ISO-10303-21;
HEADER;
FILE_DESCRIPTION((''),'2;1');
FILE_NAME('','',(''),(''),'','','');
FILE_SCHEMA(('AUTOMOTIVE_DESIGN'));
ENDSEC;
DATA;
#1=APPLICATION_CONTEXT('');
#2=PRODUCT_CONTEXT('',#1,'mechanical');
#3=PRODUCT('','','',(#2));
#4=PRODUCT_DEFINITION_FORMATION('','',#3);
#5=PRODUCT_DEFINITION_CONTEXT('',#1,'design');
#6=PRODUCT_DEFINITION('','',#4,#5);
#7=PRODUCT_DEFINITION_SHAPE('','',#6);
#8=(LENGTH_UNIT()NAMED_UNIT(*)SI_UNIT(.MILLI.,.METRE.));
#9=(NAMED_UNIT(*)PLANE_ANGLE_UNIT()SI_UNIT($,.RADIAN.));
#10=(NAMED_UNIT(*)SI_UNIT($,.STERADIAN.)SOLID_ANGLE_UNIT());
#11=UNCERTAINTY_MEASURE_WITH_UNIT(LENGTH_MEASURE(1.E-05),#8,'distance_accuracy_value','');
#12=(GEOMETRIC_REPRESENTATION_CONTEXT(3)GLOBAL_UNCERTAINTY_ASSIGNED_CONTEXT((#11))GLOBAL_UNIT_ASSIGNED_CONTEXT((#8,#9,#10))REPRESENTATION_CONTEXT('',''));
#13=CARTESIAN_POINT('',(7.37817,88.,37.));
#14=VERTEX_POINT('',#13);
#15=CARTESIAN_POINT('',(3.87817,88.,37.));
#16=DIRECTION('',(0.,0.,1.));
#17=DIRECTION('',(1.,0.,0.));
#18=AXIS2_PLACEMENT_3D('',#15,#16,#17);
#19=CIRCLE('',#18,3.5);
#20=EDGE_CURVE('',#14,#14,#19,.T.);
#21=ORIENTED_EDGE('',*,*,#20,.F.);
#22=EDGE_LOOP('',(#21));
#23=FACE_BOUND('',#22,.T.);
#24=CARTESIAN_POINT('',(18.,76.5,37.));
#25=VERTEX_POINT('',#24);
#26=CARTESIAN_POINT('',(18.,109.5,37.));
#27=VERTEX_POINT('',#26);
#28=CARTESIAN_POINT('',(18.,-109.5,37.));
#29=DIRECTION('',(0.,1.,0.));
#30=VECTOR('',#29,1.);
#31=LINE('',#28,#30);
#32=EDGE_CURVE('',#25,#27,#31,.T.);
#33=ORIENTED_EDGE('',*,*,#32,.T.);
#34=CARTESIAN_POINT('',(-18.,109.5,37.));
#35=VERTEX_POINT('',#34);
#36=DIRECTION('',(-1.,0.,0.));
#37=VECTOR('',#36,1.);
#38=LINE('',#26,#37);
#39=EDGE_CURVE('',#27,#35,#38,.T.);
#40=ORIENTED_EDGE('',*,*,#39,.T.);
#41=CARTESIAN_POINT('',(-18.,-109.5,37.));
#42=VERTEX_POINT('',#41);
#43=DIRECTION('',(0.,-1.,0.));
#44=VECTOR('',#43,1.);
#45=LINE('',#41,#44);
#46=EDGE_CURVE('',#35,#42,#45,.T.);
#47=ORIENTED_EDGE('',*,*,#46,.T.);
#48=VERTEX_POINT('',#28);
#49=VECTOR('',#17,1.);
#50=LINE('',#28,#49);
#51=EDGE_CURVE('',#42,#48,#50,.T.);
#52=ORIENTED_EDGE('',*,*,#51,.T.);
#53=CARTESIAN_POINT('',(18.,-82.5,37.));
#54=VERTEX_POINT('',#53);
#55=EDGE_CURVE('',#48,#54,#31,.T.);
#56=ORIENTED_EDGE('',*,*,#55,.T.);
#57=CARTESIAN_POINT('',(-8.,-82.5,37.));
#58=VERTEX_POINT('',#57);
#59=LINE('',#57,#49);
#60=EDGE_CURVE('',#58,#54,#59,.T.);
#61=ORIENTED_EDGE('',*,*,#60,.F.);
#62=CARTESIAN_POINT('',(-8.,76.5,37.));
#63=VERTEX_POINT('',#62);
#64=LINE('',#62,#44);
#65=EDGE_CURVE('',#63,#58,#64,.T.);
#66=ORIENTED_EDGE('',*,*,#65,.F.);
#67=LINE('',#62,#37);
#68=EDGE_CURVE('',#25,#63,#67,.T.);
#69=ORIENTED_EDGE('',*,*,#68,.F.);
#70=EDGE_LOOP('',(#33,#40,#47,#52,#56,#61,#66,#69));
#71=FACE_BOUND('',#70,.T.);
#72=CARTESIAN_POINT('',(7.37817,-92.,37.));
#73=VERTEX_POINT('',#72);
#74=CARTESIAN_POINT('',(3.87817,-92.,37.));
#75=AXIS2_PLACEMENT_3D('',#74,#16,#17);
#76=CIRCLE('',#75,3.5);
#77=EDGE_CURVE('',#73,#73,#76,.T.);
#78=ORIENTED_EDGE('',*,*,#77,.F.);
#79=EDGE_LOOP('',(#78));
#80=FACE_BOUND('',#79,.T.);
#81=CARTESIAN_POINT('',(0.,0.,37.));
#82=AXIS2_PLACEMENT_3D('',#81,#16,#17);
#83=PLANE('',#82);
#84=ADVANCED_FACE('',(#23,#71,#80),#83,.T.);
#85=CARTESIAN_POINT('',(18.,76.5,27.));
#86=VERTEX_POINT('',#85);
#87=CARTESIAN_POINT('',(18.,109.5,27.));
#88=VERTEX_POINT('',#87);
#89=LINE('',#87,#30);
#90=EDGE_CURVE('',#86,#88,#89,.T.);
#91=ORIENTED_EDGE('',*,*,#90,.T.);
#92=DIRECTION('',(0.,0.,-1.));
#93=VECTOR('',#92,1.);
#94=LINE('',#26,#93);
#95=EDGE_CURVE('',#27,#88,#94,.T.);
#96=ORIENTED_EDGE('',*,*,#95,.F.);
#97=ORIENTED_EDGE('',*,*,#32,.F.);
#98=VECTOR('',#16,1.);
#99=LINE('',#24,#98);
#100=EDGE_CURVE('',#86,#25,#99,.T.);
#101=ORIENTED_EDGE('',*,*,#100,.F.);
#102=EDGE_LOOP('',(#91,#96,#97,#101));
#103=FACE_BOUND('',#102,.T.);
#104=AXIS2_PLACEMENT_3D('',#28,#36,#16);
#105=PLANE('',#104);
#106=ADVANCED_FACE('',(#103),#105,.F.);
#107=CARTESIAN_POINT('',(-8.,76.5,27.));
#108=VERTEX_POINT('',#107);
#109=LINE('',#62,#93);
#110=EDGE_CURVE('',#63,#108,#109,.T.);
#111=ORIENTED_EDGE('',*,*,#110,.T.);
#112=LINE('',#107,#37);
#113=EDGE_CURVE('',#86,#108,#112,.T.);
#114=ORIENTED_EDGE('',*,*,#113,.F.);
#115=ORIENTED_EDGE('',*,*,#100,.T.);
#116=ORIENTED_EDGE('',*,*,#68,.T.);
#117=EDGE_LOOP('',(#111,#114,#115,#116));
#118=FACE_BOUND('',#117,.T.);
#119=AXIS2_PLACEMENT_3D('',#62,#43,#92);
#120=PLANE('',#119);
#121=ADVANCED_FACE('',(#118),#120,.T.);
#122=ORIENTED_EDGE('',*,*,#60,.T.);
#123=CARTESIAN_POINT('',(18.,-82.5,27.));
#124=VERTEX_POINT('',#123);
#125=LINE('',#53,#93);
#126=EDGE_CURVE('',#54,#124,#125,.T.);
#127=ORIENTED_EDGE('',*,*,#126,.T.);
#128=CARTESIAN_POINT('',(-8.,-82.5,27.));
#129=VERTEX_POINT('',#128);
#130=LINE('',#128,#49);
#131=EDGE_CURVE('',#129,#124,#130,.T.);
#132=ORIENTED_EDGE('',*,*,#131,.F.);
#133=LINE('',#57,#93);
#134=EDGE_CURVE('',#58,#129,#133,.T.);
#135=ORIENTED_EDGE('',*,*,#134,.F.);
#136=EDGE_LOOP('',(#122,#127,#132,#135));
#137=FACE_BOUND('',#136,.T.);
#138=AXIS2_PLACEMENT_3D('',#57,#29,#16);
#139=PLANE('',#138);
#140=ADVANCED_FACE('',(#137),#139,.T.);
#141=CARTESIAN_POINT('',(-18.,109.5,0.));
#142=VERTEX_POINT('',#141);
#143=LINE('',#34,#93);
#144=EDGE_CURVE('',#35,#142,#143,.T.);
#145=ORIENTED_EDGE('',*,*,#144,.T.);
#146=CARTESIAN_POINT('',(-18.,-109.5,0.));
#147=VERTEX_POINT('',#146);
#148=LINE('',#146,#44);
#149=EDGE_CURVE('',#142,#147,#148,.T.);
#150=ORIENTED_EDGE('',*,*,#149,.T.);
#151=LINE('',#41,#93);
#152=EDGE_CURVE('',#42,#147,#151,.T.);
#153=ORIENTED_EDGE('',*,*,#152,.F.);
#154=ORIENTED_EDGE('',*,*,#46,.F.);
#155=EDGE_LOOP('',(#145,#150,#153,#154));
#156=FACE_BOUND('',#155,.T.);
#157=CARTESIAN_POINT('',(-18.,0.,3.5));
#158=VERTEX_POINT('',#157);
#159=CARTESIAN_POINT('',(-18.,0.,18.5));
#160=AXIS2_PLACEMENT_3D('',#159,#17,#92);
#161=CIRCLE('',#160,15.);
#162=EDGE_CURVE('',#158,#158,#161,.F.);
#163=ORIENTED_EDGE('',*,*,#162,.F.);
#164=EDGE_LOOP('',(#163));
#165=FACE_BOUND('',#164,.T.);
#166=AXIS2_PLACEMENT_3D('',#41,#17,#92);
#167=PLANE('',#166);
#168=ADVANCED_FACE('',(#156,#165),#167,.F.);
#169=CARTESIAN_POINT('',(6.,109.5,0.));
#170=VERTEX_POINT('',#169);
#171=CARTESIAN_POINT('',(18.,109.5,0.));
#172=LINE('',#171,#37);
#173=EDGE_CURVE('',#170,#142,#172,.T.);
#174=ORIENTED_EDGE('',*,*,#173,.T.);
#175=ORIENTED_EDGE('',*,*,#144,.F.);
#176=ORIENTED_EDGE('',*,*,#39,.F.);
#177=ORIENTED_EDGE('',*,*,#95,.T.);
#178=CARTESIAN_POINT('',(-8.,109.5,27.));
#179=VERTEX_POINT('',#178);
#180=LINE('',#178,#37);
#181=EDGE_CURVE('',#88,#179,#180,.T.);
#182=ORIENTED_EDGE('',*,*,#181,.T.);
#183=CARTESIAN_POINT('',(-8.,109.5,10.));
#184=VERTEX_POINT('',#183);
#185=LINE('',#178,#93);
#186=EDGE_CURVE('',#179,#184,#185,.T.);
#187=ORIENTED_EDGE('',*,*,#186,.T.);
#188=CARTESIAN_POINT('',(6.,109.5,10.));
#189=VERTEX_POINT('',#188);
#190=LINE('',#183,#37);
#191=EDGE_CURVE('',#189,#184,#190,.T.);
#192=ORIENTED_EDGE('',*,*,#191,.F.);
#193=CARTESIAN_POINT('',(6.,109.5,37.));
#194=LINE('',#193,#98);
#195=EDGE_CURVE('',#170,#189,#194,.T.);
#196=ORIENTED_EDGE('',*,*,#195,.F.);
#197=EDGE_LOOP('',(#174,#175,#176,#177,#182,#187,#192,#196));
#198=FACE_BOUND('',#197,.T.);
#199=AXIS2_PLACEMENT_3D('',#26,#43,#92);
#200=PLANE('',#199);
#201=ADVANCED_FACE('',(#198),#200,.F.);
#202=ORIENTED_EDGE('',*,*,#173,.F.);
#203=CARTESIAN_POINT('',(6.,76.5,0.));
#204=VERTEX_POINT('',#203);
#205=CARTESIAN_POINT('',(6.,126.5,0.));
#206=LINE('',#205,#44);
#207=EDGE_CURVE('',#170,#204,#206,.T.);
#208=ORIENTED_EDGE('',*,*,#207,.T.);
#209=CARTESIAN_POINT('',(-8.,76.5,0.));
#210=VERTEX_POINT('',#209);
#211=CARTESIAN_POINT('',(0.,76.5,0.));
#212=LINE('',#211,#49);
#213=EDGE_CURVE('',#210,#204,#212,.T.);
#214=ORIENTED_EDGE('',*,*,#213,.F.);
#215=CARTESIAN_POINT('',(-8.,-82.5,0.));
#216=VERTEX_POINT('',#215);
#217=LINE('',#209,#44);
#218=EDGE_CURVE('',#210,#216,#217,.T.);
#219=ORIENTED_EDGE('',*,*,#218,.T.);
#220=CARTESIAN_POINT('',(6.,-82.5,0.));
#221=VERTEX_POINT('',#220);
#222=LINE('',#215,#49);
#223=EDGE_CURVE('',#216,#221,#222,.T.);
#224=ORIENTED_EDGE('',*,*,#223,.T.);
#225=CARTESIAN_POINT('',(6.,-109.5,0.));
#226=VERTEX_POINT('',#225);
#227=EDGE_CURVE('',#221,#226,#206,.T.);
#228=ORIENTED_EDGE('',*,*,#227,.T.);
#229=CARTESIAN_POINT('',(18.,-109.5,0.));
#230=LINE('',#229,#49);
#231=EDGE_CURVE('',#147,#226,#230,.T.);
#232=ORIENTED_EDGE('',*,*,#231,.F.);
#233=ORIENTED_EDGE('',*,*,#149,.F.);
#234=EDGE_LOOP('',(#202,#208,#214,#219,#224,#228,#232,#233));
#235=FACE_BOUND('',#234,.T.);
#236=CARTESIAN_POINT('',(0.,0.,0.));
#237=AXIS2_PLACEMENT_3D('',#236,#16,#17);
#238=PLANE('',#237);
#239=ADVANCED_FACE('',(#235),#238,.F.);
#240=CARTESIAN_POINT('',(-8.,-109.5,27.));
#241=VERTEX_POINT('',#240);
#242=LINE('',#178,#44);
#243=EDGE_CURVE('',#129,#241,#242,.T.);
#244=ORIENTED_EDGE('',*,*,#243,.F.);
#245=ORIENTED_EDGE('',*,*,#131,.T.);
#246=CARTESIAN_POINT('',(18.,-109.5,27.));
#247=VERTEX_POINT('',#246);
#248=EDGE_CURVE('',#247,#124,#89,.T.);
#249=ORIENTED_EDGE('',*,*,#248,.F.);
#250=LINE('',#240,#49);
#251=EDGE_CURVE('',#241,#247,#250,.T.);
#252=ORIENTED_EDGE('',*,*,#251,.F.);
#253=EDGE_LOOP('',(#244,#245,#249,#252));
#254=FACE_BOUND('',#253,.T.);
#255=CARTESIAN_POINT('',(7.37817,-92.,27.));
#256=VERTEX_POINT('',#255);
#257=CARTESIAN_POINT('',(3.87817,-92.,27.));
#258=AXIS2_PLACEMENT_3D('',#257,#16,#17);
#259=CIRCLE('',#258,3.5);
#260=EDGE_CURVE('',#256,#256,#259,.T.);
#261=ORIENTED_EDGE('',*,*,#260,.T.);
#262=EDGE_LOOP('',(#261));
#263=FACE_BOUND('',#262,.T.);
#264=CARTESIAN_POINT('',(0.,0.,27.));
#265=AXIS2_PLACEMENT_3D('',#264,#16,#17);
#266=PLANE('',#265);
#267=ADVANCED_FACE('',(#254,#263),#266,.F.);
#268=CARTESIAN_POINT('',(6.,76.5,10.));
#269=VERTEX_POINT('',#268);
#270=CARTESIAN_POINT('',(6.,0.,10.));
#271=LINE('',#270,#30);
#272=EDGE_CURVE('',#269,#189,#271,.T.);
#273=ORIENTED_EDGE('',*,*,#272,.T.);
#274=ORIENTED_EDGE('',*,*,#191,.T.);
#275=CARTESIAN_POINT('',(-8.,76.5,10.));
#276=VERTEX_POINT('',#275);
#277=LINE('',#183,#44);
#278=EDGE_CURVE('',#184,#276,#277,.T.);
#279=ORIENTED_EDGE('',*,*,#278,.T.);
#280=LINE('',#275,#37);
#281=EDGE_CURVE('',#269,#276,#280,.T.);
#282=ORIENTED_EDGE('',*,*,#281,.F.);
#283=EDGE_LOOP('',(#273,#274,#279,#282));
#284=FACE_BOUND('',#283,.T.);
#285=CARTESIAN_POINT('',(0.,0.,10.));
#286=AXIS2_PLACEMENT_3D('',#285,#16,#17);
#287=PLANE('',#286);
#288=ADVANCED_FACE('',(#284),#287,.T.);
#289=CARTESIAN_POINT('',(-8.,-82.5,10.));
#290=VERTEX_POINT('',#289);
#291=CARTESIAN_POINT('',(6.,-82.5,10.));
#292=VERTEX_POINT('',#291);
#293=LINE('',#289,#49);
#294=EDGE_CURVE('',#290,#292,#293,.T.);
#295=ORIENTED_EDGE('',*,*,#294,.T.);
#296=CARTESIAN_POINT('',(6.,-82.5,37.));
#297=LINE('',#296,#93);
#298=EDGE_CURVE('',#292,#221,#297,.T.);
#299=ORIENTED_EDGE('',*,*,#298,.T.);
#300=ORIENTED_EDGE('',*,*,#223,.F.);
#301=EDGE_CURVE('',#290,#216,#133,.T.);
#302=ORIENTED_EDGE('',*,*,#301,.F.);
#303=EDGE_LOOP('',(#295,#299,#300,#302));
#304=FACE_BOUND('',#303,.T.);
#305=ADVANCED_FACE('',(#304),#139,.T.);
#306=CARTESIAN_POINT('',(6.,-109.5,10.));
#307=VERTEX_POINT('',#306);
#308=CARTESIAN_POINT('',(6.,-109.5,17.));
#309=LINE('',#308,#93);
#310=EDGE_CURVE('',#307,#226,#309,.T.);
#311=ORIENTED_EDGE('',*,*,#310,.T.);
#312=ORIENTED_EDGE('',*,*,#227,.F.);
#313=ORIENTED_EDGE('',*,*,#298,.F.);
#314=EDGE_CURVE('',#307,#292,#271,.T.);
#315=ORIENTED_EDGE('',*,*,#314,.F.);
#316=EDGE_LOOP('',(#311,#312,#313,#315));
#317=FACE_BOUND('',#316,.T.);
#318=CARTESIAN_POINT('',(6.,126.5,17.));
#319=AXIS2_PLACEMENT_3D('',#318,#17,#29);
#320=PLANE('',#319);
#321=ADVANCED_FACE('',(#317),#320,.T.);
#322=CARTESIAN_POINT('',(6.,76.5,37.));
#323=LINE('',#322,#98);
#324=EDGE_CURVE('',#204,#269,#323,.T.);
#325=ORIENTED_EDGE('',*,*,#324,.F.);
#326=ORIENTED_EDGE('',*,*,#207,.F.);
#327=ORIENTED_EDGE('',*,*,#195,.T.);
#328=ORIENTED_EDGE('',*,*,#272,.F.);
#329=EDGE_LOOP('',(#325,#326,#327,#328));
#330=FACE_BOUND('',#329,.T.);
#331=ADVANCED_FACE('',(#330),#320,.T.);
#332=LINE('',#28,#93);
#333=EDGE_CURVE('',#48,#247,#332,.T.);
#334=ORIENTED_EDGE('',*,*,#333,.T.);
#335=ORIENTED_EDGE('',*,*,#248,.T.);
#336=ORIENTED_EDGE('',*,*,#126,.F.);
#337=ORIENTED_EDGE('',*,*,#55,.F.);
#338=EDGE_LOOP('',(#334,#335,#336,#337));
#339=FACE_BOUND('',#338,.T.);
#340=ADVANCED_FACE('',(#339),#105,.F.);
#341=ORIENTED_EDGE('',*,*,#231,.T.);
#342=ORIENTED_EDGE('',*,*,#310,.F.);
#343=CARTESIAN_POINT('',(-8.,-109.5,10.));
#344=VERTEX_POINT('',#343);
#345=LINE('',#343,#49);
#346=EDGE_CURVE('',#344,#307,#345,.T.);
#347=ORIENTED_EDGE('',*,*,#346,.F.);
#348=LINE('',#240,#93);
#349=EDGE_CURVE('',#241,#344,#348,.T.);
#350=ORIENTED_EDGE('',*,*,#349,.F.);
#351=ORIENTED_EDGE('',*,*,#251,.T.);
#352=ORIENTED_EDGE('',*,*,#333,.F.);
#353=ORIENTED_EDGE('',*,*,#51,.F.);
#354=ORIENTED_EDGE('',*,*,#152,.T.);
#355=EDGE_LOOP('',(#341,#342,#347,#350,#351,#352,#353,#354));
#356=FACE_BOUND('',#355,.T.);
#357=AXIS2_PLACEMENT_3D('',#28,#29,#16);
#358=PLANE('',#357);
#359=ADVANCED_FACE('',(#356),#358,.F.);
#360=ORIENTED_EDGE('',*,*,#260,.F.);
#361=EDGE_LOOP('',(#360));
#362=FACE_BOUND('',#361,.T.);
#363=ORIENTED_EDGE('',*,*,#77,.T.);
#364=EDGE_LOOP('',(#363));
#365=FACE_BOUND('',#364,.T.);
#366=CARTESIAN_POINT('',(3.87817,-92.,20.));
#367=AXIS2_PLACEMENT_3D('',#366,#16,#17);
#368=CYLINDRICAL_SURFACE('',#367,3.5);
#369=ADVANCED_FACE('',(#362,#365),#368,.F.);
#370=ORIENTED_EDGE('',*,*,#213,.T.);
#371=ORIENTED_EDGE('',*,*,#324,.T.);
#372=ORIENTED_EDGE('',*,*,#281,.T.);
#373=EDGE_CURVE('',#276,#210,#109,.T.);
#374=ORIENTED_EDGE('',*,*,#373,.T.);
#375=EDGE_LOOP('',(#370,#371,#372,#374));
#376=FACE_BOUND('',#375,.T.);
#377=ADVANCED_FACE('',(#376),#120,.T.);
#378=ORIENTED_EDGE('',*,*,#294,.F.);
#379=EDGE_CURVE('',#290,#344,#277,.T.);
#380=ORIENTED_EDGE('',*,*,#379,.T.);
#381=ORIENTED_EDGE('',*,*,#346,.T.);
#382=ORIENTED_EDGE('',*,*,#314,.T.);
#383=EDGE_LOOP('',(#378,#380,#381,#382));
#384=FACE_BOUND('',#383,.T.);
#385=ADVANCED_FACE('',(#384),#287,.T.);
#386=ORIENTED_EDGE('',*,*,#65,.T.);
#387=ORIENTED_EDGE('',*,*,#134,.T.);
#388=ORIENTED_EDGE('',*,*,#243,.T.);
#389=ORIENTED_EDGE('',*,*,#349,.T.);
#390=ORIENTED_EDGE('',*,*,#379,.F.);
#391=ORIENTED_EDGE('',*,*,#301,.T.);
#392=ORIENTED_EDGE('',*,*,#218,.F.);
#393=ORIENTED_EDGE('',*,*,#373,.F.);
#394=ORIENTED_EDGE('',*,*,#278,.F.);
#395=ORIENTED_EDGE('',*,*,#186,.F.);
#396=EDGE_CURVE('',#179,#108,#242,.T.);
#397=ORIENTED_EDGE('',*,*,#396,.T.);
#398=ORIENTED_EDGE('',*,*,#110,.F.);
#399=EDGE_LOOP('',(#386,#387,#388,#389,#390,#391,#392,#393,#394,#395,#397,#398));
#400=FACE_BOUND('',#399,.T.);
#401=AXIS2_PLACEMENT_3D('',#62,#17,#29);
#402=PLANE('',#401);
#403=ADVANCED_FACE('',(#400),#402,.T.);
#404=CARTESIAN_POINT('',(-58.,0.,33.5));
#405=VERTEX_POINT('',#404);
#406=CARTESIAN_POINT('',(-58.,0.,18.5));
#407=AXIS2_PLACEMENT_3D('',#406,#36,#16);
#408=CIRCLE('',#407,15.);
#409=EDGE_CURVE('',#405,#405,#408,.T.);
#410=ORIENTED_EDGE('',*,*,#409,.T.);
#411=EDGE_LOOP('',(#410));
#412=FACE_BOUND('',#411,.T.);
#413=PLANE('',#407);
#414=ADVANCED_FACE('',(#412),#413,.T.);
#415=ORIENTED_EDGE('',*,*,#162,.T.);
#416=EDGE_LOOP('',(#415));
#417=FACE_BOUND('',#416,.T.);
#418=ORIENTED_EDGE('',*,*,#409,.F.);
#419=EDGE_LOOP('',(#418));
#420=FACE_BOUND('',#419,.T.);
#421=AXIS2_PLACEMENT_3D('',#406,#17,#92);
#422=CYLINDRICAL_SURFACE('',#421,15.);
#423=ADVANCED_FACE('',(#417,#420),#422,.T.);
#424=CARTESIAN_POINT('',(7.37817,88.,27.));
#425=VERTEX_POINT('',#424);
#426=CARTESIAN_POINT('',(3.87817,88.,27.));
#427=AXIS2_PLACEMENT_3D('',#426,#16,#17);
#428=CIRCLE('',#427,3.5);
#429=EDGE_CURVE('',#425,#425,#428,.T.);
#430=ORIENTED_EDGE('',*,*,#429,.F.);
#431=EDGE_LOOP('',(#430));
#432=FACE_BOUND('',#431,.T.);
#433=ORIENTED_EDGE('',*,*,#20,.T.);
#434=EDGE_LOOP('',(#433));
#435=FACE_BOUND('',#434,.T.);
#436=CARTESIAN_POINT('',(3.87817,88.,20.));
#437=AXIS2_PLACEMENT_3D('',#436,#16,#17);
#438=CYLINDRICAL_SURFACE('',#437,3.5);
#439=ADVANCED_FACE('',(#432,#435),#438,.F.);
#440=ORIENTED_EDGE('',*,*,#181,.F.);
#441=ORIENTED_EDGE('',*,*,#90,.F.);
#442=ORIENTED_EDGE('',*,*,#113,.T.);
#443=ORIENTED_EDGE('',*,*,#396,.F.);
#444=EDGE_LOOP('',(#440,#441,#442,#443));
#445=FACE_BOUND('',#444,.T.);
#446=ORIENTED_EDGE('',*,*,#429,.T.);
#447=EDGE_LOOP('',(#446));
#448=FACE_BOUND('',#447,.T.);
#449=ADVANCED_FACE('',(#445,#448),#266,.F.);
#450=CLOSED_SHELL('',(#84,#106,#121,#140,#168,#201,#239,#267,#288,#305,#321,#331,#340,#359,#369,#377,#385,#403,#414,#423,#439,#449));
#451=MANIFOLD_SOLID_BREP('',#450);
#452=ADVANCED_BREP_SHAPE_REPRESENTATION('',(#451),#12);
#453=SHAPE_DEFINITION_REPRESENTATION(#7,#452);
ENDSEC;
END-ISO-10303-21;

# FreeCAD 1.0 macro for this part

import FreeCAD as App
import Part
import Sketcher


def add_polygon(sketch, points):
    """Adds a closed chain of lines whose ends are joined by coincident constraints."""
    first, n = sketch.GeometryCount, len(points)
    for a, b in zip(points, points[1:] + points[:1]):
        sketch.addGeometry(Part.LineSegment(App.Vector(*a, 0), App.Vector(*b, 0)), False)
    for i in range(n):
        sketch.addConstraint(Sketcher.Constraint("Coincident", first + i, 2, first + (i + 1) % n, 1))

doc = App.newDocument("Part")
body = doc.addObject("PartDesign::Body", "Body")

# Sketch on XY plane
sketch1 = body.newObject("Sketcher::SketchObject", "Sketch")
sketch1.AttachmentSupport = (doc.getObject("XY_Plane"), [""])
sketch1.MapMode = "FlatFace"
add_polygon(sketch1, [(-18, 109.5), (-18, -109.5), (18, -109.5), (18, 109.5)])  # lines 0-3
sketch1.addConstraint([
    Sketcher.Constraint("Vertical", 0),
    Sketcher.Constraint("Horizontal", 1),
    Sketcher.Constraint("Vertical", 2),
    Sketcher.Constraint("Horizontal", 3),
    Sketcher.Constraint("Symmetric", 0, 2, 2, 2, -1, 1),
    Sketcher.Constraint("DistanceX", 1, 1, 1, 2, 36.0),
    Sketcher.Constraint("DistanceY", 0, 2, 0, 1, 219.0),
])
pad1 = body.newObject("PartDesign::Pad", "Pad")
pad1.Profile = sketch1
pad1.Length = 37

# Sketch on XY plane
sketch2 = body.newObject("Sketcher::SketchObject", "Sketch001")
sketch2.AttachmentSupport = (doc.getObject("XY_Plane"), [""])
sketch2.MapMode = "FlatFace"
add_polygon(sketch2, [(-8, 76.5), (-8, -82.5), (72.767996, -82.5), (72.767996, 76.5)])  # lines 0-3
sketch2.addConstraint([
    Sketcher.Constraint("Vertical", 0),
    Sketcher.Constraint("Horizontal", 1),
    Sketcher.Constraint("Vertical", 2),
    Sketcher.Constraint("Horizontal", 3),
    Sketcher.Constraint("DistanceY", 0, 2, 0, 1, 159.0),
    Sketcher.Constraint("DistanceX", 0, 2, -1, 1, 8.0),
    Sketcher.Constraint("DistanceY", 0, 2, -1, 1, 82.5),
    Sketcher.Constraint("DistanceX", 1, 1, 1, 2, 80.767996),
])
pocket1 = body.newObject("PartDesign::Pocket", "Pocket")
pocket1.Profile = sketch2
pocket1.Type = "ThroughAll"
pocket1.Reversed = True

# Sketch on XY plane
sketch3 = body.newObject("Sketcher::SketchObject", "Sketch002")
sketch3.AttachmentSupport = (doc.getObject("XY_Plane"), [""])
sketch3.MapMode = "FlatFace"
sketch3.AttachmentOffset = App.Placement(App.Vector(0, 0, 10), App.Rotation())
add_polygon(sketch3, [(-8, 109.5), (-8, -109.5), (18, -109.5), (18, 109.5)])  # lines 0-3
sketch3.addConstraint([
    Sketcher.Constraint("Vertical", 0),
    Sketcher.Constraint("Horizontal", 1),
    Sketcher.Constraint("Vertical", 2),
    Sketcher.Constraint("Horizontal", 3),
    Sketcher.Constraint("DistanceX", 1, 1, 1, 2, 26.0),
    Sketcher.Constraint("DistanceY", 0, 2, 0, 1, 219.0),
    Sketcher.Constraint("DistanceX", 0, 2, -1, 1, 8.0),
    Sketcher.Constraint("DistanceY", 0, 2, -1, 1, 109.5),
])
pocket2 = body.newObject("PartDesign::Pocket", "Pocket001")
pocket2.Profile = sketch3
pocket2.Length = 17
pocket2.Reversed = True

# Sketch on XY plane
sketch4 = body.newObject("Sketcher::SketchObject", "Sketch003")
sketch4.AttachmentSupport = (doc.getObject("XY_Plane"), [""])
sketch4.MapMode = "FlatFace"
add_polygon(sketch4, [(6, 126.5), (6, -109.5), (18, -109.5), (18, 126.5)])  # lines 0-3
sketch4.addConstraint([
    Sketcher.Constraint("Vertical", 0),
    Sketcher.Constraint("Horizontal", 1),
    Sketcher.Constraint("Vertical", 2),
    Sketcher.Constraint("Horizontal", 3),
    Sketcher.Constraint("DistanceX", 1, 1, 1, 2, 12.0),
    Sketcher.Constraint("DistanceY", 0, 2, 0, 1, 236.0),
    Sketcher.Constraint("DistanceX", -1, 1, 0, 2, 6.0),
    Sketcher.Constraint("DistanceY", 0, 2, -1, 1, 109.5),
])
pocket3 = body.newObject("PartDesign::Pocket", "Pocket002")
pocket3.Profile = sketch4
pocket3.Length = 17
pocket3.Reversed = True

# Sketch on XY plane
sketch5 = body.newObject("Sketcher::SketchObject", "Sketch004")
sketch5.AttachmentSupport = (doc.getObject("XY_Plane"), [""])
sketch5.MapMode = "FlatFace"
sketch5.AttachmentOffset = App.Placement(App.Vector(0, 0, 37), App.Rotation())
sketch5.addGeometry([
    Part.Circle(App.Vector(3.87817, 88, 0), App.Vector(0, 0, 1), 3.5),
    Part.Circle(App.Vector(3.87817, -92, 0), App.Vector(0, 0, 1), 3.5),
], False)
sketch5.addConstraint([
    Sketcher.Constraint("Equal", 0, 1),
    Sketcher.Constraint("Vertical", 0, 3, 1, 3),
    Sketcher.Constraint("Diameter", 0, 7.0),
    Sketcher.Constraint("DistanceY", -1, 1, 0, 3, 88.0),
    Sketcher.Constraint("DistanceY", 1, 3, -1, 1, 92.0),
    Sketcher.Constraint("DistanceX", -1, 1, 0, 3, 3.87817),
])
pocket4 = body.newObject("PartDesign::Pocket", "Pocket003")
pocket4.Profile = sketch5
pocket4.Length = 17

# Sketch on YZ plane
sketch6 = body.newObject("Sketcher::SketchObject", "Sketch005")
sketch6.AttachmentSupport = (doc.getObject("YZ_Plane"), [""])
sketch6.MapMode = "FlatFace"
sketch6.AttachmentOffset = App.Placement(App.Vector(0, 0, -18), App.Rotation())
sketch6.addGeometry(Part.Circle(App.Vector(0, 18.5, 0), App.Vector(0, 0, 1), 15), False)
sketch6.addConstraint([
    Sketcher.Constraint("PointOnObject", 0, 3, -2),
    Sketcher.Constraint("Diameter", 0, 30.0),
    Sketcher.Constraint("DistanceY", -1, 1, 0, 3, 18.5),
])
pad2 = body.newObject("PartDesign::Pad", "Pad001")
pad2.Profile = sketch6
pad2.Length = 40
pad2.Reversed = True

doc.recompute()
